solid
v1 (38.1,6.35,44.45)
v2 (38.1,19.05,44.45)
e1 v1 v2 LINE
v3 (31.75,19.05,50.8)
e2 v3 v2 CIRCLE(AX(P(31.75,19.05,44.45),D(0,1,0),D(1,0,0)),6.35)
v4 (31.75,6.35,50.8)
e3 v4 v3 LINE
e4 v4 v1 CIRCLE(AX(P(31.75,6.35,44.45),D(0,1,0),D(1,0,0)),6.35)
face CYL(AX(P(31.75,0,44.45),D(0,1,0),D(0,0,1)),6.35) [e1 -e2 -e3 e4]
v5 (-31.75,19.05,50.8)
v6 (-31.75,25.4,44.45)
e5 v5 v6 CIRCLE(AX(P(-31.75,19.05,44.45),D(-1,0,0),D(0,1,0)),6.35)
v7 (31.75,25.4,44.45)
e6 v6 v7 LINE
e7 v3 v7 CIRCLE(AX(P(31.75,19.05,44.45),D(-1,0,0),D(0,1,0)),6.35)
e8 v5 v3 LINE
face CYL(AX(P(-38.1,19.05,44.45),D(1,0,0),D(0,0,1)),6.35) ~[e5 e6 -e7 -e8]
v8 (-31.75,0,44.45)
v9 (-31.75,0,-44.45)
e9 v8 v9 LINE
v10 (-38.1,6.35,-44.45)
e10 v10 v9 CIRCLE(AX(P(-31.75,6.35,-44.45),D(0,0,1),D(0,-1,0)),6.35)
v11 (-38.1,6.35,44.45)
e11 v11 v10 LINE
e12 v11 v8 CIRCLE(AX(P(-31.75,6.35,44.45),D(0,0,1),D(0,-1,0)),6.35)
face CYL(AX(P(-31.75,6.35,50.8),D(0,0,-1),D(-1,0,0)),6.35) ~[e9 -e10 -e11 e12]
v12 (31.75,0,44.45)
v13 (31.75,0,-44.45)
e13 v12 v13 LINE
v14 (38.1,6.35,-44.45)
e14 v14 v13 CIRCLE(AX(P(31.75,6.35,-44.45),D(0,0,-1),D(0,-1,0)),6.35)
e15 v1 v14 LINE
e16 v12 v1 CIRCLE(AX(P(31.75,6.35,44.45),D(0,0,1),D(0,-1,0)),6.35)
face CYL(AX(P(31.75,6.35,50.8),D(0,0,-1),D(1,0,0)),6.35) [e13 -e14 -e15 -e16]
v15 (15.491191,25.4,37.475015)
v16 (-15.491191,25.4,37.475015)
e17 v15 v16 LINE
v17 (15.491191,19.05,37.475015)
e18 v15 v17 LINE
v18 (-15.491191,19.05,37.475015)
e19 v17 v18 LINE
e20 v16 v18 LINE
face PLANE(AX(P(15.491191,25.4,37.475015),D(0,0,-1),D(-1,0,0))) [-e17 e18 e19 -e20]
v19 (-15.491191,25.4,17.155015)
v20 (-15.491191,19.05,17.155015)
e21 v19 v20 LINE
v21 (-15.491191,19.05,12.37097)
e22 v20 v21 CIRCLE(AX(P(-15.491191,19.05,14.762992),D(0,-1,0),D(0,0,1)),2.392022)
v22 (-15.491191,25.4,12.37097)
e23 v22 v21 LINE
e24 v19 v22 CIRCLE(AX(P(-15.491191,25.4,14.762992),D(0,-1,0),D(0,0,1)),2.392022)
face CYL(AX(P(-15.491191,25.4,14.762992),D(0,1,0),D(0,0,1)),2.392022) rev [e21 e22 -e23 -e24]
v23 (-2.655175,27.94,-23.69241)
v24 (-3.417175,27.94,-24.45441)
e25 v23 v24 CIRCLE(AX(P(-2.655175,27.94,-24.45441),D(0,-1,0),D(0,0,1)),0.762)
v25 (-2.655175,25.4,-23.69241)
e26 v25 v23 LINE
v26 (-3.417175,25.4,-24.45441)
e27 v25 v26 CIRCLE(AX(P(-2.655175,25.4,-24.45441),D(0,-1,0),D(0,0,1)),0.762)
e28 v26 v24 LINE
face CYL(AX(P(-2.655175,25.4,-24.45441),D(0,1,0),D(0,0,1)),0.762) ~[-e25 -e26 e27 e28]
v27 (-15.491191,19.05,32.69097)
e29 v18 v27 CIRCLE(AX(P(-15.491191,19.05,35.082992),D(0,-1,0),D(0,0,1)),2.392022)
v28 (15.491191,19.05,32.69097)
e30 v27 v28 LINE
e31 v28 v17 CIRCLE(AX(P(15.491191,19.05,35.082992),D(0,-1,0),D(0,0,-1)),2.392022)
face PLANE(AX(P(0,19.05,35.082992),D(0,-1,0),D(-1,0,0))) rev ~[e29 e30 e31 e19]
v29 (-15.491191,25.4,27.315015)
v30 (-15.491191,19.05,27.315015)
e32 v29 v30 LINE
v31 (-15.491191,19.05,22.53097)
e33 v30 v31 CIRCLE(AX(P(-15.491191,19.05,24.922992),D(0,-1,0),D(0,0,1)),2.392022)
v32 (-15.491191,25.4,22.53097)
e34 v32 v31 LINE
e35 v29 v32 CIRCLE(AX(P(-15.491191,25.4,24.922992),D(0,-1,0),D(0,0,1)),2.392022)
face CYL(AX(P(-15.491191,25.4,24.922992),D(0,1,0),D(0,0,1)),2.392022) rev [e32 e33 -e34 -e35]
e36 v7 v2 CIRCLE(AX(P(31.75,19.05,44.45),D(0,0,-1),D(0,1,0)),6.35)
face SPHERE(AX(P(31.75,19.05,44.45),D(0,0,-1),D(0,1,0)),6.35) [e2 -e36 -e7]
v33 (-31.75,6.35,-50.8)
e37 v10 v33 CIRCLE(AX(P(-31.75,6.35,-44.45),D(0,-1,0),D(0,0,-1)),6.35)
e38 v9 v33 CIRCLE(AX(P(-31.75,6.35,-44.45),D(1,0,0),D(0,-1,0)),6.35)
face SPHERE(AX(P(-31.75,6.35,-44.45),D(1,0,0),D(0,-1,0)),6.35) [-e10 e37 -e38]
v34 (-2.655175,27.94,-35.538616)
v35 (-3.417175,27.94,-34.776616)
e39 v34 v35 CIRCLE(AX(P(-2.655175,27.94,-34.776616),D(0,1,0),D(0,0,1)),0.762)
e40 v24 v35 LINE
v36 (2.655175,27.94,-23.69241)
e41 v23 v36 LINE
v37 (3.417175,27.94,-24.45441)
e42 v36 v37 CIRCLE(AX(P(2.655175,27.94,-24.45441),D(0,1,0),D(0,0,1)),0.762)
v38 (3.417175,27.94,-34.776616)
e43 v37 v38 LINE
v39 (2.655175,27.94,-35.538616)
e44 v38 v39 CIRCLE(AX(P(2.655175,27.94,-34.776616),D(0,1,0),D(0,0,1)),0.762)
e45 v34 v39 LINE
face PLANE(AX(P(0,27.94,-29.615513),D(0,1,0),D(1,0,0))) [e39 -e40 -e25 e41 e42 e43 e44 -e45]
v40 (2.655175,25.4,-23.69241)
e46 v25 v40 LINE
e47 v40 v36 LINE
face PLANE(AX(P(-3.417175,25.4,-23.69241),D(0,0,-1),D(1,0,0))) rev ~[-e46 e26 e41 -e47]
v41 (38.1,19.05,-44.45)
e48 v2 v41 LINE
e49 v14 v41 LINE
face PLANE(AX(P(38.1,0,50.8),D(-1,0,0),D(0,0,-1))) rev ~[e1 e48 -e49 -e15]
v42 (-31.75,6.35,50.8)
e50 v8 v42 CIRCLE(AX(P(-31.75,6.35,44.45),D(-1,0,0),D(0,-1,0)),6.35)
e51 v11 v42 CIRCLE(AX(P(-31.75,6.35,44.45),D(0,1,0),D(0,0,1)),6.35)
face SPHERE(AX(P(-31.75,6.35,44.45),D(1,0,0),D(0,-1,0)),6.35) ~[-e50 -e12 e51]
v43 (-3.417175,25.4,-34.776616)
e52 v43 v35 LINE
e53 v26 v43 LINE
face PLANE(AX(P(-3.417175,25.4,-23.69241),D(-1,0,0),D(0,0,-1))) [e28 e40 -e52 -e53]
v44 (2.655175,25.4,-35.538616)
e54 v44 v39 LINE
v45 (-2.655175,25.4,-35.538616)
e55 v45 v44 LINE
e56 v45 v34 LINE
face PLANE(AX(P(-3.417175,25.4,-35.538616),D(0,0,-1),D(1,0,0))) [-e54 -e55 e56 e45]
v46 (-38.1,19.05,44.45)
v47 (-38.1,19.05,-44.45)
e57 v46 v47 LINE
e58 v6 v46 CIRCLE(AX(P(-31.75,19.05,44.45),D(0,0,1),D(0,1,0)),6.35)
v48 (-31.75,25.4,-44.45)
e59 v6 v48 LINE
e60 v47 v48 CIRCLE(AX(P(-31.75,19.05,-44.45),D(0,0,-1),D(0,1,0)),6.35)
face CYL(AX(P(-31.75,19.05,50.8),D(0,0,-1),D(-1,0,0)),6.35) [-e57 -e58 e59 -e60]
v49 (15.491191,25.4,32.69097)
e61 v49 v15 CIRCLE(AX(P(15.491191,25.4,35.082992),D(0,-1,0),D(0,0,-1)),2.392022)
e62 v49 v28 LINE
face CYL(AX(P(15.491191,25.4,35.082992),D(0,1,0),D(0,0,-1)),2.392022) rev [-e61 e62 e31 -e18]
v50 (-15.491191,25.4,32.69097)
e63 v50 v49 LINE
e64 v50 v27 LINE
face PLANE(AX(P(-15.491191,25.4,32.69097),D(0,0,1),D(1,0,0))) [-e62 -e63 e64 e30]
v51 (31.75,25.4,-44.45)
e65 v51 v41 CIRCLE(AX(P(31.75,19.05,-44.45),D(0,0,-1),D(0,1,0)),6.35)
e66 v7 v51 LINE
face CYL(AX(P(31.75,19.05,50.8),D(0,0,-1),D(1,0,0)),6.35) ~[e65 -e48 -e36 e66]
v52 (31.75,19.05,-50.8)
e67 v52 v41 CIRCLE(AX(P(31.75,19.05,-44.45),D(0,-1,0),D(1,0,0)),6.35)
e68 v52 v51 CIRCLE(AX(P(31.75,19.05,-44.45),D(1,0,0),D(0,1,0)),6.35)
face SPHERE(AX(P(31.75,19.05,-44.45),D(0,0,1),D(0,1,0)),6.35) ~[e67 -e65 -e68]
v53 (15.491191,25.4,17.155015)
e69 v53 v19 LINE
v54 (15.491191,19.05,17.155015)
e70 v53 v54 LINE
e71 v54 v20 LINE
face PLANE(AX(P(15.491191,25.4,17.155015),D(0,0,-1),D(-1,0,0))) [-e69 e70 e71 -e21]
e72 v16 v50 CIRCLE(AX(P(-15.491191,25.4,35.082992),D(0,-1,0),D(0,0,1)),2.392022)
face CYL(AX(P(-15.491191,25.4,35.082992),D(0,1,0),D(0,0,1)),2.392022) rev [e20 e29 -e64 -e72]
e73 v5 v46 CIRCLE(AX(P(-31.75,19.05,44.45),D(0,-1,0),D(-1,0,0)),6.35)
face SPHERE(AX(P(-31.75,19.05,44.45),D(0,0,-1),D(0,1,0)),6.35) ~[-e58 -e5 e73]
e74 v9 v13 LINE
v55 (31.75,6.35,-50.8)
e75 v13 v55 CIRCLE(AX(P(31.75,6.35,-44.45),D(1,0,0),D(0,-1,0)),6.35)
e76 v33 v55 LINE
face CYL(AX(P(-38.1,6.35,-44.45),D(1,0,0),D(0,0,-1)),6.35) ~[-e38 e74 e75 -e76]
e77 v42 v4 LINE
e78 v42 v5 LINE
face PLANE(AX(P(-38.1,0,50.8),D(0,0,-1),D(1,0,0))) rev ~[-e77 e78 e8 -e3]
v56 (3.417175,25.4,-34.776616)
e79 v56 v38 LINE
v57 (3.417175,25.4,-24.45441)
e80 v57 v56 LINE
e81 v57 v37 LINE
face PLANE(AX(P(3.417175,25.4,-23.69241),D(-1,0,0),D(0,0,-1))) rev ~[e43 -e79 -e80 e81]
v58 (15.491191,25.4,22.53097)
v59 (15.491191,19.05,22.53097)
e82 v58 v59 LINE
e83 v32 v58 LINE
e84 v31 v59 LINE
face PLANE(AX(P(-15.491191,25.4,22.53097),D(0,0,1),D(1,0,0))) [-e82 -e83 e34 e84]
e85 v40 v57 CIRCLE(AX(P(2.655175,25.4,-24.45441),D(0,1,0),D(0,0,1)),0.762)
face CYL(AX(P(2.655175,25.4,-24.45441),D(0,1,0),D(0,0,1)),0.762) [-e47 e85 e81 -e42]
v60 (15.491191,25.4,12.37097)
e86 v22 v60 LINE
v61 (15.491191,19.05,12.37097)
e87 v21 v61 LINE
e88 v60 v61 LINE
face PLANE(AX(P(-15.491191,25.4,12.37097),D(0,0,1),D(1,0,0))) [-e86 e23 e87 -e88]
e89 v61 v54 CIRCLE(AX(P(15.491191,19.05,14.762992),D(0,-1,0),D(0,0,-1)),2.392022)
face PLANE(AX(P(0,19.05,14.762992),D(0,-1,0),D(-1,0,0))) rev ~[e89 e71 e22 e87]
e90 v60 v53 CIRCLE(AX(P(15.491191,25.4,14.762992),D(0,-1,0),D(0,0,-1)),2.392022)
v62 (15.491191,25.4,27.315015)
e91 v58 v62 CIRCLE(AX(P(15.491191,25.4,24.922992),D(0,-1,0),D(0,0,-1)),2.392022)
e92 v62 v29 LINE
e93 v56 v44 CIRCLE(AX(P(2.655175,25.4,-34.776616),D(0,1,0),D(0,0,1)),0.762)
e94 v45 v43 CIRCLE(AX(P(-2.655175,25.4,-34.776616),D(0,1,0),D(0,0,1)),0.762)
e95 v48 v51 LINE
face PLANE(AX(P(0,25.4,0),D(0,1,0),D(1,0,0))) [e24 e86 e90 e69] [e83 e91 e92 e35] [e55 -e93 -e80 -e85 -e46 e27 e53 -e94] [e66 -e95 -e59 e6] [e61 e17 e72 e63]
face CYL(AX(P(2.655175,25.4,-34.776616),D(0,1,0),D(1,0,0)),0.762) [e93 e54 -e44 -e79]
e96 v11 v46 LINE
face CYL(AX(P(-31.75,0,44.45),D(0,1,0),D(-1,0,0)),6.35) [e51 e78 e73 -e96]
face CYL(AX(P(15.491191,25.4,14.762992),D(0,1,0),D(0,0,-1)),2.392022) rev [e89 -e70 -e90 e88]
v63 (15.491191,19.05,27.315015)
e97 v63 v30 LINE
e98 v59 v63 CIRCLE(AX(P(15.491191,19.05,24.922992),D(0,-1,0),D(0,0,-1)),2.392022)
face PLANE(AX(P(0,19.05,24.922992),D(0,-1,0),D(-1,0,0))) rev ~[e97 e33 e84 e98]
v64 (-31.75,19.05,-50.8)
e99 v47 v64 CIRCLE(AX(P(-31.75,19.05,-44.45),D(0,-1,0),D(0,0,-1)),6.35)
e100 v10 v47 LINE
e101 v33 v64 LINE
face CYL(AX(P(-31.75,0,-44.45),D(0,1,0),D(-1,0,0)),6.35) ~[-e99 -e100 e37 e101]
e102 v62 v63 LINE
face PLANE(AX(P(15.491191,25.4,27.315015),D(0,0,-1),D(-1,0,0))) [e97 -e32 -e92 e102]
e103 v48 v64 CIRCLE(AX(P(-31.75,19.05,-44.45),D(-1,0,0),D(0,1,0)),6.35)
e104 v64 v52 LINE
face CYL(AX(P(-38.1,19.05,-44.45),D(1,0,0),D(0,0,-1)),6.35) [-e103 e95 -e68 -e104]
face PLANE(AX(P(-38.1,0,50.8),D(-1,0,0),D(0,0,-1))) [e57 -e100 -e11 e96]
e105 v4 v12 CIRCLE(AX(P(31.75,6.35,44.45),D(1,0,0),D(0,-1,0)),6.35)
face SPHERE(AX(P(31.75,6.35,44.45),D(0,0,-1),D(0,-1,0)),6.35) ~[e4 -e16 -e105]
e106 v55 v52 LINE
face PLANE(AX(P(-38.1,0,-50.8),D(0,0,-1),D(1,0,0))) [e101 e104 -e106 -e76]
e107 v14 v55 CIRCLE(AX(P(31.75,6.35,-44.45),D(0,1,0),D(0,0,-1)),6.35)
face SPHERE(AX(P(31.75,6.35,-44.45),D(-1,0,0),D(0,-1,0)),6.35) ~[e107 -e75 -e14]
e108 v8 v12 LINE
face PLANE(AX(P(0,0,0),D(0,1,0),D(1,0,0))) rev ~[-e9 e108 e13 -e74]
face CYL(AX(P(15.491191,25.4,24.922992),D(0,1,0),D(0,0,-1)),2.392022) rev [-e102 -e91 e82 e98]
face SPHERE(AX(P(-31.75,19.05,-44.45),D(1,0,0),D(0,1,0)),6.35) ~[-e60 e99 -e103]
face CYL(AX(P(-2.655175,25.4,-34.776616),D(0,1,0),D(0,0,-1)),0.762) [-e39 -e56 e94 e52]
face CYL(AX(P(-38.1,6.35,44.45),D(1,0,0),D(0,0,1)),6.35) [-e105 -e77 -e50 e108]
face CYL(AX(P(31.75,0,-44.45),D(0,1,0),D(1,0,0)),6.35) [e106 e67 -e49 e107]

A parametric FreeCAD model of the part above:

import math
import FreeCAD as App
import Part
import Sketcher
Q = App.Units.Quantity


def edges_at(feature, points):
    """Names of the edges that pass closest to the given points."""
    edges = feature.Shape.Edges
    near = lambda p: min(range(len(edges)), key=lambda i: edges[i].distToShape(Part.Vertex(*p))[0])
    return sorted({f"Edge{near(p) + 1}" for p in points})

doc = App.newDocument("Part")
body = doc.addObject("PartDesign::Body", "Body")

sketch1 = doc.addObject("Sketcher::SketchObject", "Sketch")
body.addObject(sketch1)
sketch1.AttachmentSupport = (doc.XZ_Plane, [""])
sketch1.MapMode = "FlatFace"
sketch1.addGeometry([
    Part.LineSegment(App.Vector(-38.1, -50.8, 0), App.Vector(-38.1, 50.8, 0)),
    Part.LineSegment(App.Vector(-38.1, 50.8, 0), App.Vector(38.1, 50.8, 0)),
    Part.LineSegment(App.Vector(38.1, 50.8, 0), App.Vector(38.1, -50.8, 0)),
    Part.LineSegment(App.Vector(38.1, -50.8, 0), App.Vector(-38.1, -50.8, 0)),
], False)
sketch1.addConstraint([
    Sketcher.Constraint("Coincident", 0, 2, 1, 1),
    Sketcher.Constraint("Coincident", 1, 2, 2, 1),
    Sketcher.Constraint("Coincident", 2, 2, 3, 1),
    Sketcher.Constraint("Coincident", 3, 2, 0, 1),
    Sketcher.Constraint("Vertical", 0),
    Sketcher.Constraint("Horizontal", 1),
    Sketcher.Constraint("Vertical", 2),
    Sketcher.Constraint("Horizontal", 3),
    Sketcher.Constraint("Symmetric", 0, 2, 2, 2, -1, 1),
    Sketcher.Constraint("DistanceX", 1, 1, 1, 2, Q("3 in")),
    Sketcher.Constraint("DistanceY", 0, 1, 0, 2, Q("4 in")),
])
pad1 = doc.addObject("PartDesign::Pad", "Pad")
body.addObject(pad1)
pad1.Profile = sketch1
pad1.Length = Q("1 in")
pad1.Reversed = True
doc.recompute()

fillet = doc.addObject("PartDesign::Fillet", "Fillet")
body.addObject(fillet)
fillet.Base = (pad1, ["Edge1"])
fillet.UseAllEdges = True
fillet.Radius = Q("0.25 in")

sketch2 = doc.addObject("Sketcher::SketchObject", "Sketch001")
body.addObject(sketch2)
sketch2.AttachmentSupport = (doc.XZ_Plane, [""])
sketch2.MapMode = "FlatFace"
sketch2.AttachmentOffset = App.Placement(App.Vector(0, 0, -1 * 25.4), App.Rotation())
sketch2.addGeometry([
    Part.LineSegment(App.Vector(-15.491191, 37.475015, 0), App.Vector(15.491191, 37.475015, 0)),
    Part.ArcOfCircle(Part.Circle(App.Vector(15.491191, 35.082992, 0), App.Vector(0, 0, 1), 2.392022), math.radians(-90), math.radians(90)),
    Part.LineSegment(App.Vector(15.491191, 32.69097, 0), App.Vector(-15.491191, 32.69097, 0)),
    Part.ArcOfCircle(Part.Circle(App.Vector(-15.491191, 35.082992, 0), App.Vector(0, 0, 1), 2.392022), math.radians(90), math.radians(270)),
    Part.LineSegment(App.Vector(-15.491191, 27.315015, 0), App.Vector(15.491191, 27.315015, 0)),
    Part.ArcOfCircle(Part.Circle(App.Vector(15.491191, 24.922992, 0), App.Vector(0, 0, 1), 2.392022), math.radians(-90), math.radians(90)),
    Part.LineSegment(App.Vector(15.491191, 22.53097, 0), App.Vector(-15.491191, 22.53097, 0)),
    Part.ArcOfCircle(Part.Circle(App.Vector(-15.491191, 24.922992, 0), App.Vector(0, 0, 1), 2.392022), math.radians(90), math.radians(270)),
    Part.LineSegment(App.Vector(-15.491191, 17.155015, 0), App.Vector(15.491191, 17.155015, 0)),
    Part.ArcOfCircle(Part.Circle(App.Vector(15.491191, 14.762992, 0), App.Vector(0, 0, 1), 2.392022), math.radians(-90), math.radians(90)),
    Part.LineSegment(App.Vector(15.491191, 12.37097, 0), App.Vector(-15.491191, 12.37097, 0)),
    Part.ArcOfCircle(Part.Circle(App.Vector(-15.491191, 14.762992, 0), App.Vector(0, 0, 1), 2.392022), math.radians(90), math.radians(270)),
], False)
sketch2.addConstraint([
    Sketcher.Constraint("Tangent", 0, 2, 1, 2),
    Sketcher.Constraint("Tangent", 1, 1, 2, 1),
    Sketcher.Constraint("Tangent", 2, 2, 3, 2),
    Sketcher.Constraint("Tangent", 3, 1, 0, 1),
    Sketcher.Constraint("Tangent", 4, 2, 5, 2),
    Sketcher.Constraint("Tangent", 5, 1, 6, 1),
    Sketcher.Constraint("Tangent", 6, 2, 7, 2),
    Sketcher.Constraint("Tangent", 7, 1, 4, 1),
    Sketcher.Constraint("Tangent", 8, 2, 9, 2),
    Sketcher.Constraint("Tangent", 9, 1, 10, 1),
    Sketcher.Constraint("Tangent", 10, 2, 11, 2),
    Sketcher.Constraint("Tangent", 11, 1, 8, 1),
    Sketcher.Constraint("Horizontal", 0),
    Sketcher.Constraint("Horizontal", 2),
    Sketcher.Constraint("Horizontal", 4),
    Sketcher.Constraint("Horizontal", 6),
    Sketcher.Constraint("Horizontal", 8),
    Sketcher.Constraint("Horizontal", 10),
    Sketcher.Constraint("Equal", 3, 5),
    Sketcher.Constraint("Equal", 7, 9),
    Sketcher.Constraint("Vertical", 1, 3, 5, 3),
    Sketcher.Constraint("Vertical", 3, 3, 7, 3),
    Sketcher.Constraint("Vertical", 5, 3, 9, 3),
    Sketcher.Constraint("Vertical", 7, 3, 11, 3),
    Sketcher.Constraint("DistanceY", 5, 3, 1, 3, Q("0.4 in")),
    Sketcher.Constraint("DistanceY", 9, 3, 5, 3, Q("0.4 in")),
    Sketcher.Constraint("Radius", 1, 2.392022),
    Sketcher.Constraint("DistanceX", 0, 1, 0, 2, 30.982383),
    Sketcher.Constraint("DistanceX", -1, 1, 1, 3, 15.491191),
    Sketcher.Constraint("DistanceY", -1, 1, 1, 1, 32.69097),
])
pocket1 = doc.addObject("PartDesign::Pocket", "Pocket")
body.addObject(pocket1)
pocket1.Profile = sketch2
pocket1.Length = Q("0.25 in")
pocket1.Reversed = True

sketch3 = doc.addObject("Sketcher::SketchObject", "Sketch002")
body.addObject(sketch3)
sketch3.AttachmentSupport = (doc.XZ_Plane, [""])
sketch3.MapMode = "FlatFace"
sketch3.AttachmentOffset = App.Placement(App.Vector(0, 0, -1 * 25.4), App.Rotation())
sketch3.addGeometry([
    Part.LineSegment(App.Vector(-3.417175, -35.538616, 0), App.Vector(-3.417175, -23.69241, 0)),
    Part.LineSegment(App.Vector(-3.417175, -23.69241, 0), App.Vector(3.417175, -23.69241, 0)),
    Part.LineSegment(App.Vector(3.417175, -23.69241, 0), App.Vector(3.417175, -35.538616, 0)),
    Part.LineSegment(App.Vector(3.417175, -35.538616, 0), App.Vector(-3.417175, -35.538616, 0)),
], False)
sketch3.addConstraint([
    Sketcher.Constraint("Coincident", 0, 2, 1, 1),
    Sketcher.Constraint("Coincident", 1, 2, 2, 1),
    Sketcher.Constraint("Coincident", 2, 2, 3, 1),
    Sketcher.Constraint("Coincident", 3, 2, 0, 1),
    Sketcher.Constraint("Vertical", 0),
    Sketcher.Constraint("Horizontal", 1),
    Sketcher.Constraint("Vertical", 2),
    Sketcher.Constraint("Horizontal", 3),
    Sketcher.Constraint("DistanceX", 1, 1, 1, 2, 6.834349),
    Sketcher.Constraint("DistanceY", 0, 1, 0, 2, 11.846205),
    Sketcher.Constraint("DistanceY", 0, 2, -1, 1, 23.69241),
    Sketcher.Constraint("DistanceX", 0, 2, -1, 1, 3.417175),
])
pad2 = doc.addObject("PartDesign::Pad", "Pad001")
body.addObject(pad2)
pad2.Profile = sketch3
pad2.Length = Q("0.1 in")
pad2.Reversed = True
doc.recompute()

fillet2 = doc.addObject("PartDesign::Fillet", "Fillet001")
body.addObject(fillet2)
fillet2.Base = (pad2, edges_at(pad2, [
    (-3.417, 26.67, -35.539),
    (-3.417, 26.67, -23.692),
    (3.417, 26.67, -23.692),
    (3.417, 26.67, -35.539),
]))
fillet2.Radius = Q("0.03 in")

doc.recompute()
